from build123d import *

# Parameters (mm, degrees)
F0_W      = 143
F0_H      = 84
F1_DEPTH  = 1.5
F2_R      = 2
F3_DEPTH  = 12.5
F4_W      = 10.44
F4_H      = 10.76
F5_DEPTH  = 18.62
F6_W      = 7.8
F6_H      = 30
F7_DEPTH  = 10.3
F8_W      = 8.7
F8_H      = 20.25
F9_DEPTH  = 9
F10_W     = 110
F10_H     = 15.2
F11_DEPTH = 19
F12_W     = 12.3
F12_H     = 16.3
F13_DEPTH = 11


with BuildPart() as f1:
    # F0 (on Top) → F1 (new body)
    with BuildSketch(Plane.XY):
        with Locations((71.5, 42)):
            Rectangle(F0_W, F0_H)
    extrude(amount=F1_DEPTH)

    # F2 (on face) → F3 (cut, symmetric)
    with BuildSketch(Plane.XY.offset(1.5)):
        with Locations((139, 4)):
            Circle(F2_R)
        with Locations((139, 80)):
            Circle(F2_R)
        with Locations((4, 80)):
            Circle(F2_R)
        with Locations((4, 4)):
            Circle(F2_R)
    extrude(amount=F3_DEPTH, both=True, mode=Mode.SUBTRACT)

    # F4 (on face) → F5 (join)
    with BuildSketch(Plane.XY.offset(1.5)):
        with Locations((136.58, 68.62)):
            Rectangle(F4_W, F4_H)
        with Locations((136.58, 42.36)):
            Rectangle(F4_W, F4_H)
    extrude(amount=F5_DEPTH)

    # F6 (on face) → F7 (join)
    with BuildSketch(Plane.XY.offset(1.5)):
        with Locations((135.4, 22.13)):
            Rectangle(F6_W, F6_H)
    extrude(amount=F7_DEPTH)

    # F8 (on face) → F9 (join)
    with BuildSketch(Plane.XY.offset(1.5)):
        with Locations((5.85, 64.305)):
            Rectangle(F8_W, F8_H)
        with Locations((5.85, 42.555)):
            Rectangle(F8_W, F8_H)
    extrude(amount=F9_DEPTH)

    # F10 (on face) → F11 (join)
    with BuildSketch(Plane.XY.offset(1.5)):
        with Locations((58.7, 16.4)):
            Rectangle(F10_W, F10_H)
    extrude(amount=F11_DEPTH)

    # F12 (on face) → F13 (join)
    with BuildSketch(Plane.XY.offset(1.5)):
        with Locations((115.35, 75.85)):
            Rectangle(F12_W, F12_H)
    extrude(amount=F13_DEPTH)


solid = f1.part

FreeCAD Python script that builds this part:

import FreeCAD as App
import Part
import Sketcher
Q = App.Units.Quantity

doc = App.newDocument("Part")
body = doc.addObject("PartDesign::Body", "Body")

# Sketch on XY plane
sketch1 = doc.addObject("Sketcher::SketchObject", "Sketch")
body.addObject(sketch1)
sketch1.AttachmentSupport = (doc.XY_Plane, [""])
sketch1.MapMode = "FlatFace"
sketch1.addGeometry([
    Part.LineSegment(App.Vector(0, 84, 0), App.Vector(0, 0, 0)),
    Part.LineSegment(App.Vector(0, 0, 0), App.Vector(143, 0, 0)),
    Part.LineSegment(App.Vector(143, 0, 0), App.Vector(143, 84, 0)),
    Part.LineSegment(App.Vector(143, 84, 0), App.Vector(0, 84, 0)),
], False)
sketch1.addConstraint([
    Sketcher.Constraint("Coincident", 0, 2, 1, 1),
    Sketcher.Constraint("Coincident", 1, 2, 2, 1),
    Sketcher.Constraint("Coincident", 2, 2, 3, 1),
    Sketcher.Constraint("Coincident", 3, 2, 0, 1),
    Sketcher.Constraint("Vertical", 0),
    Sketcher.Constraint("Horizontal", 1),
    Sketcher.Constraint("Vertical", 2),
    Sketcher.Constraint("Horizontal", 3),
    Sketcher.Constraint("Coincident", 0, 2, -1, 1),
    Sketcher.Constraint("DistanceX", 1, 1, 1, 2, Q("143 mm")),
    Sketcher.Constraint("DistanceY", 0, 2, 0, 1, Q("84 mm")),
])
pad1 = doc.addObject("PartDesign::Pad", "Pad")
body.addObject(pad1)
pad1.Profile = sketch1
pad1.Length = 1.5

# Sketch on XY plane
sketch2 = doc.addObject("Sketcher::SketchObject", "Sketch001")
body.addObject(sketch2)
sketch2.AttachmentSupport = (doc.XY_Plane, [""])
sketch2.MapMode = "FlatFace"
sketch2.AttachmentOffset = App.Placement(App.Vector(0, 0, 1.5), App.Rotation())
sketch2.addGeometry([
    Part.Circle(App.Vector(139, 4, 0), App.Vector(0, 0, 1), 2),
    Part.Circle(App.Vector(139, 80, 0), App.Vector(0, 0, 1), 2),
    Part.Circle(App.Vector(4, 80, 0), App.Vector(0, 0, 1), 2),
    Part.Circle(App.Vector(4, 4, 0), App.Vector(0, 0, 1), 2),
], False)
sketch2.addConstraint([
    Sketcher.Constraint("Equal", 0, 1),
    Sketcher.Constraint("Equal", 1, 2),
    Sketcher.Constraint("Equal", 2, 3),
    Sketcher.Constraint("Horizontal", 1, 3, 2, 3),
    Sketcher.Constraint("Horizontal", 0, 3, 3, 3),
    Sketcher.Constraint("Vertical", 0, 3, 1, 3),
    Sketcher.Constraint("Vertical", 2, 3, 3, 3),
    Sketcher.Constraint("Diameter", 0, Q("4 mm")),
    Sketcher.Constraint("DistanceX", -1, 1, 0, 3, Q("139 mm")),
    Sketcher.Constraint("DistanceY", -1, 1, 0, 3, Q("4 mm")),
    Sketcher.Constraint("DistanceY", -1, 1, 1, 3, Q("80 mm")),
    Sketcher.Constraint("DistanceX", -1, 1, 2, 3, Q("4 mm")),
])
pocket1 = doc.addObject("PartDesign::Pocket", "Pocket")
body.addObject(pocket1)
pocket1.Profile = sketch2
pocket1.Length = 25
pocket1.Midplane = True

# Sketch on XY plane
sketch3 = doc.addObject("Sketcher::SketchObject", "Sketch002")
body.addObject(sketch3)
sketch3.AttachmentSupport = (doc.XY_Plane, [""])
sketch3.MapMode = "FlatFace"
sketch3.AttachmentOffset = App.Placement(App.Vector(0, 0, 1.5), App.Rotation())
sketch3.addGeometry([
    Part.LineSegment(App.Vector(131, 74, 0), App.Vector(131, 63, 0)),  # 0
    Part.LineSegment(App.Vector(131, 63, 0), App.Vector(142, 63, 0)),  # 1
    Part.LineSegment(App.Vector(142, 63, 0), App.Vector(142, 74, 0)),  # 2
    Part.LineSegment(App.Vector(142, 74, 0), App.Vector(131, 74, 0)),  # 3
    Part.LineSegment(App.Vector(131, 48, 0), App.Vector(131, 37, 0)),  # 4
    Part.LineSegment(App.Vector(131, 37, 0), App.Vector(142, 37, 0)),  # 5
    Part.LineSegment(App.Vector(142, 37, 0), App.Vector(142, 48, 0)),  # 6
    Part.LineSegment(App.Vector(142, 48, 0), App.Vector(131, 48, 0)),  # 7
], False)
sketch3.addConstraint([
    Sketcher.Constraint("Coincident", 0, 2, 1, 1),
    Sketcher.Constraint("Coincident", 1, 2, 2, 1),
    Sketcher.Constraint("Coincident", 2, 2, 3, 1),
    Sketcher.Constraint("Coincident", 3, 2, 0, 1),
    Sketcher.Constraint("Coincident", 4, 2, 5, 1),
    Sketcher.Constraint("Coincident", 5, 2, 6, 1),
    Sketcher.Constraint("Coincident", 6, 2, 7, 1),
    Sketcher.Constraint("Coincident", 7, 2, 4, 1),
    Sketcher.Constraint("Vertical", 0),
    Sketcher.Constraint("Horizontal", 1),
    Sketcher.Constraint("Vertical", 2),
    Sketcher.Constraint("Horizontal", 3),
    Sketcher.Constraint("Vertical", 4),
    Sketcher.Constraint("Horizontal", 5),
    Sketcher.Constraint("Vertical", 6),
    Sketcher.Constraint("Horizontal", 7),
    Sketcher.Constraint("Vertical", 3, 2, 4, 2),
    Sketcher.Constraint("Vertical", 2, 2, 5, 2),
    Sketcher.Constraint("Equal", 2, 4),
    Sketcher.Constraint("DistanceY", -1, 1, 2, 2, Q("74 mm")),
    Sketcher.Constraint("DistanceX", 1, 1, 1, 2, Q("10.44 mm")),
    Sketcher.Constraint("DistanceY", 0, 2, 0, 1, Q("10.76 mm")),
    Sketcher.Constraint("DistanceX", -1, 1, 1, 2, Q("141.8 mm")),
    Sketcher.Constraint("DistanceY", 6, 2, 1, 2, Q("15.5 mm")),
])
pad2 = doc.addObject("PartDesign::Pad", "Pad001")
body.addObject(pad2)
pad2.Profile = sketch3
pad2.Length = 18.62

# Sketch on XY plane
sketch4 = doc.addObject("Sketcher::SketchObject", "Sketch003")
body.addObject(sketch4)
sketch4.AttachmentSupport = (doc.XY_Plane, [""])
sketch4.MapMode = "FlatFace"
sketch4.AttachmentOffset = App.Placement(App.Vector(0, 0, 1.5), App.Rotation())
sketch4.addGeometry([
    Part.LineSegment(App.Vector(132, 37, 0), App.Vector(132, 7, 0)),
    Part.LineSegment(App.Vector(132, 7, 0), App.Vector(139, 7, 0)),
    Part.LineSegment(App.Vector(139, 7, 0), App.Vector(139, 37, 0)),
    Part.LineSegment(App.Vector(139, 37, 0), App.Vector(132, 37, 0)),
], False)
sketch4.addConstraint([
    Sketcher.Constraint("Coincident", 0, 2, 1, 1),
    Sketcher.Constraint("Coincident", 1, 2, 2, 1),
    Sketcher.Constraint("Coincident", 2, 2, 3, 1),
    Sketcher.Constraint("Coincident", 3, 2, 0, 1),
    Sketcher.Constraint("Vertical", 0),
    Sketcher.Constraint("Horizontal", 1),
    Sketcher.Constraint("Vertical", 2),
    Sketcher.Constraint("Horizontal", 3),
    Sketcher.Constraint("DistanceY", 0, 2, 0, 1, Q("30 mm")),
    Sketcher.Constraint("DistanceX", 1, 1, 1, 2, Q("7.8 mm")),
    Sketcher.Constraint("DistanceX", -1, 1, 0, 2, Q("131.5 mm")),
    Sketcher.Constraint("DistanceY", -1, 1, 0, 2, Q("7.13 mm")),
])
pad3 = doc.addObject("PartDesign::Pad", "Pad002")
body.addObject(pad3)
pad3.Profile = sketch4
pad3.Length = 10.3

# Sketch on XY plane
sketch5 = doc.addObject("Sketcher::SketchObject", "Sketch004")
body.addObject(sketch5)
sketch5.AttachmentSupport = (doc.XY_Plane, [""])
sketch5.MapMode = "FlatFace"
sketch5.AttachmentOffset = App.Placement(App.Vector(0, 0, 1.5), App.Rotation())
sketch5.addGeometry([
    Part.LineSegment(App.Vector(2, 74, 0), App.Vector(2, 54, 0)),  # 0
    Part.LineSegment(App.Vector(2, 54, 0), App.Vector(10, 54, 0)),  # 1
    Part.LineSegment(App.Vector(10, 54, 0), App.Vector(10, 74, 0)),  # 2
    Part.LineSegment(App.Vector(10, 74, 0), App.Vector(2, 74, 0)),  # 3
    Part.LineSegment(App.Vector(2, 53, 0), App.Vector(2, 32, 0)),  # 4
    Part.LineSegment(App.Vector(2, 32, 0), App.Vector(10, 32, 0)),  # 5
    Part.LineSegment(App.Vector(10, 32, 0), App.Vector(10, 53, 0)),  # 6
    Part.LineSegment(App.Vector(10, 53, 0), App.Vector(2, 53, 0)),  # 7
], False)
sketch5.addConstraint([
    Sketcher.Constraint("Coincident", 0, 2, 1, 1),
    Sketcher.Constraint("Coincident", 1, 2, 2, 1),
    Sketcher.Constraint("Coincident", 2, 2, 3, 1),
    Sketcher.Constraint("Coincident", 3, 2, 0, 1),
    Sketcher.Constraint("Coincident", 4, 2, 5, 1),
    Sketcher.Constraint("Coincident", 5, 2, 6, 1),
    Sketcher.Constraint("Coincident", 6, 2, 7, 1),
    Sketcher.Constraint("Coincident", 7, 2, 4, 1),
    Sketcher.Constraint("Vertical", 0),
    Sketcher.Constraint("Horizontal", 1),
    Sketcher.Constraint("Vertical", 2),
    Sketcher.Constraint("Horizontal", 3),
    Sketcher.Constraint("Vertical", 4),
    Sketcher.Constraint("Horizontal", 5),
    Sketcher.Constraint("Vertical", 6),
    Sketcher.Constraint("Horizontal", 7),
    Sketcher.Constraint("Vertical", 3, 2, 4, 2),
    Sketcher.Constraint("Vertical", 2, 2, 5, 2),
    Sketcher.Constraint("Equal", 2, 4),
    Sketcher.Constraint("DistanceX", 1, 1, 1, 2, Q("8.7 mm")),
    Sketcher.Constraint("DistanceY", 4, 2, 3, 2, Q("42 mm")),
    Sketcher.Constraint("DistanceY", 0, 2, 0, 1, Q("20.25 mm")),
    Sketcher.Constraint("DistanceX", -1, 1, 0, 2, Q("1.5 mm")),
    Sketcher.Constraint("DistanceY", -1, 1, 0, 2, Q("54.18 mm")),
])
pad4 = doc.addObject("PartDesign::Pad", "Pad003")
body.addObject(pad4)
pad4.Profile = sketch5
pad4.Length = 9

# Sketch on XY plane
sketch6 = doc.addObject("Sketcher::SketchObject", "Sketch005")
body.addObject(sketch6)
sketch6.AttachmentSupport = (doc.XY_Plane, [""])
sketch6.MapMode = "FlatFace"
sketch6.AttachmentOffset = App.Placement(App.Vector(0, 0, 1.5), App.Rotation())
sketch6.addGeometry([
    Part.LineSegment(App.Vector(4, 24, 0), App.Vector(4, 9, 0)),
    Part.LineSegment(App.Vector(4, 9, 0), App.Vector(114, 9, 0)),
    Part.LineSegment(App.Vector(114, 9, 0), App.Vector(114, 24, 0)),
    Part.LineSegment(App.Vector(114, 24, 0), App.Vector(4, 24, 0)),
], False)
sketch6.addConstraint([
    Sketcher.Constraint("Coincident", 0, 2, 1, 1),
    Sketcher.Constraint("Coincident", 1, 2, 2, 1),
    Sketcher.Constraint("Coincident", 2, 2, 3, 1),
    Sketcher.Constraint("Coincident", 3, 2, 0, 1),
    Sketcher.Constraint("Vertical", 0),
    Sketcher.Constraint("Horizontal", 1),
    Sketcher.Constraint("Vertical", 2),
    Sketcher.Constraint("Horizontal", 3),
    Sketcher.Constraint("DistanceX", 1, 1, 1, 2, Q("110 mm")),
    Sketcher.Constraint("DistanceY", 0, 2, 0, 1, Q("15.2 mm")),
    Sketcher.Constraint("DistanceY", -1, 1, 2, 2, Q("24 mm")),
    Sketcher.Constraint("DistanceX", -1, 1, 0, 2, Q("3.7 mm")),
])
pad5 = doc.addObject("PartDesign::Pad", "Pad004")
body.addObject(pad5)
pad5.Profile = sketch6
pad5.Length = 19

# Sketch on XY plane
sketch7 = doc.addObject("Sketcher::SketchObject", "Sketch006")
body.addObject(sketch7)
sketch7.AttachmentSupport = (doc.XY_Plane, [""])
sketch7.MapMode = "FlatFace"
sketch7.AttachmentOffset = App.Placement(App.Vector(0, 0, 1.5), App.Rotation())
sketch7.addGeometry([
    Part.LineSegment(App.Vector(109, 84, 0), App.Vector(109, 68, 0)),
    Part.LineSegment(App.Vector(109, 68, 0), App.Vector(122, 68, 0)),
    Part.LineSegment(App.Vector(122, 68, 0), App.Vector(122, 84, 0)),
    Part.LineSegment(App.Vector(122, 84, 0), App.Vector(109, 84, 0)),
], False)
sketch7.addConstraint([
    Sketcher.Constraint("Coincident", 0, 2, 1, 1),
    Sketcher.Constraint("Coincident", 1, 2, 2, 1),
    Sketcher.Constraint("Coincident", 2, 2, 3, 1),
    Sketcher.Constraint("Coincident", 3, 2, 0, 1),
    Sketcher.Constraint("Vertical", 0),
    Sketcher.Constraint("Horizontal", 1),
    Sketcher.Constraint("Vertical", 2),
    Sketcher.Constraint("Horizontal", 3),
    Sketcher.Constraint("DistanceX", 1, 1, 1, 2, Q("12.3 mm")),
    Sketcher.Constraint("DistanceY", 0, 2, 0, 1, Q("16.3 mm")),
    Sketcher.Constraint("DistanceY", -1, 1, 2, 2, Q("84 mm")),
    Sketcher.Constraint("DistanceX", -1, 1, 0, 2, Q("109.2 mm")),
])
pad6 = doc.addObject("PartDesign::Pad", "Pad005")
body.addObject(pad6)
pad6.Profile = sketch7
pad6.Length = 11

doc.recompute()
